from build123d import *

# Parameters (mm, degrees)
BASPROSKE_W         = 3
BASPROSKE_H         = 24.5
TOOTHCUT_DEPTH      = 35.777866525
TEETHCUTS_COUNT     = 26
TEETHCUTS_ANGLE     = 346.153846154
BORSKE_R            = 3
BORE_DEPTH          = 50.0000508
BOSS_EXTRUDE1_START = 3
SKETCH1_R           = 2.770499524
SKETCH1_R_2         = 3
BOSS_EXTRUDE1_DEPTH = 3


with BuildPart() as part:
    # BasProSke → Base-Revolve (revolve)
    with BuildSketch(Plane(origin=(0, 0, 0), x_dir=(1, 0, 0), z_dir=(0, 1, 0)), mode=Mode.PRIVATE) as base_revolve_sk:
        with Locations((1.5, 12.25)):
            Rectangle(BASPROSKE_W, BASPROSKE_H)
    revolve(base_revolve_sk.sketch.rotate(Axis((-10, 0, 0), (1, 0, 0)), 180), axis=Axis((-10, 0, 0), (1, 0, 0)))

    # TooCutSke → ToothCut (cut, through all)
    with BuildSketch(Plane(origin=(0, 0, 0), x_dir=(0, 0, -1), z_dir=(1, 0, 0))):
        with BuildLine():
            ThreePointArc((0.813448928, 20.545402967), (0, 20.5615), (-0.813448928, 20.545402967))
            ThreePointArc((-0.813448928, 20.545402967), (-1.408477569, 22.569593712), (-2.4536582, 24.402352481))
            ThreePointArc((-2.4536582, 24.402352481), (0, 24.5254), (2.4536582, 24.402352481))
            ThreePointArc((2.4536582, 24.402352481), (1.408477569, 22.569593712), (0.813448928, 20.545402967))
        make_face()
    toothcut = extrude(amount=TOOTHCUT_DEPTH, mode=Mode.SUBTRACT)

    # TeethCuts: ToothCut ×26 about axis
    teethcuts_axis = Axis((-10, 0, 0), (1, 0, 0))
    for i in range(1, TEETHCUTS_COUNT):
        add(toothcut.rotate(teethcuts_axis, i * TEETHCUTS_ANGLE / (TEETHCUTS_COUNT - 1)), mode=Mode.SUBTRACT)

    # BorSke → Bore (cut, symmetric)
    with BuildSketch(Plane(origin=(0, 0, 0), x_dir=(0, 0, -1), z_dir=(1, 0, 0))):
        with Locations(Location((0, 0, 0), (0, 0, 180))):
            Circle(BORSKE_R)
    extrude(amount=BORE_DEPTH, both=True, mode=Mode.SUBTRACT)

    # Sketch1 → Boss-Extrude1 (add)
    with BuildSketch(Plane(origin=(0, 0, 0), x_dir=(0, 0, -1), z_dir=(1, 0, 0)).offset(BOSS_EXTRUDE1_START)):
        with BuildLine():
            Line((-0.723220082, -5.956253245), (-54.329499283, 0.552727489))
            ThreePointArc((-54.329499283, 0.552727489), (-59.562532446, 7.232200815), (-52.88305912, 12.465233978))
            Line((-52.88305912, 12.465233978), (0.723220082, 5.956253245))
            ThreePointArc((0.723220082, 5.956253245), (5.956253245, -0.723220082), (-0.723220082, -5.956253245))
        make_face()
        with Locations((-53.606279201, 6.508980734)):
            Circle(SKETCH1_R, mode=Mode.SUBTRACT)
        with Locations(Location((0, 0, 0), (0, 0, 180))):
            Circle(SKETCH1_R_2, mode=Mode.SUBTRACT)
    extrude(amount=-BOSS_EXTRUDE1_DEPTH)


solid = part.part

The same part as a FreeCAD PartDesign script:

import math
import FreeCAD as App
import Part
import Sketcher
from FreeCAD import Vector
Q = App.Units.Quantity

doc = App.newDocument("Part")
body = doc.addObject("PartDesign::Body", "Body")

# Sketch on XZ plane
sketch1 = body.newObject("Sketcher::SketchObject", "Sketch")
sketch1.AttachmentSupport = (doc.getObject("XZ_Plane"), [""])
sketch1.MapMode = "FlatFace"
sketch1.addGeometry([
    Part.LineSegment(Vector(0, -24.5, 0), Vector(0, 0, 0)),
    Part.LineSegment(Vector(0, 0, 0), Vector(3, 0, 0)),
    Part.LineSegment(Vector(3, 0, 0), Vector(3, -24.5, 0)),
    Part.LineSegment(Vector(3, -24.5, 0), Vector(0, -24.5, 0)),
], False)
sketch1.addConstraint([
    Sketcher.Constraint("Coincident", 0, 2, 1, 1),
    Sketcher.Constraint("Coincident", 1, 2, 2, 1),
    Sketcher.Constraint("Coincident", 2, 2, 3, 1),
    Sketcher.Constraint("Coincident", 3, 2, 0, 1),
    Sketcher.Constraint("Vertical", 0),
    Sketcher.Constraint("Horizontal", 1),
    Sketcher.Constraint("Vertical", 2),
    Sketcher.Constraint("Horizontal", 3),
    Sketcher.Constraint("Coincident", 0, 2, -1, 1),
    Sketcher.Constraint("DistanceX", 1, 1, 1, 2, Q("3 mm")),
    Sketcher.Constraint("DistanceY", 0, 1, 0, 2, Q("24.5 mm")),
])
revolution = body.newObject("PartDesign::Revolution", "Revolution")
revolution.Profile = sketch1
revolution.ReferenceAxis = (sketch1, ["H_Axis"])
revolution.Angle = 360

# Sketch on YZ plane
sketch2 = body.newObject("Sketcher::SketchObject", "Sketch001")
sketch2.AttachmentSupport = (doc.getObject("YZ_Plane"), [""])
sketch2.MapMode = "FlatFace"
sketch2.addGeometry([
    Part.ArcOfCircle(Part.Circle(Vector(0, 0, 0), Vector(0, 0, 1), 20.5615), math.radians(-2.267313), math.radians(2.267313)),
    Part.ArcOfCircle(Part.Circle(Vector(19.008364, -9.782703, 0), Vector(0, 0, 1), 9.1), math.radians(53.647888), math.radians(80.275821)),
    Part.ArcOfCircle(Part.Circle(Vector(0, 0, 0), Vector(0, 0, 1), 24.5254), math.radians(-5.741796), math.radians(5.741796)),
    Part.ArcOfCircle(Part.Circle(Vector(19.008364, 9.782703, 0), Vector(0, 0, 1), 9.1), math.radians(-80.275821), math.radians(-53.647888)),
], False)
sketch2.addConstraint([
    Sketcher.Constraint("Coincident", 0, 1, 1, 2),
    Sketcher.Constraint("Coincident", 1, 1, 2, 1),
    Sketcher.Constraint("Coincident", 2, 2, 3, 2),
    Sketcher.Constraint("Coincident", 3, 1, 0, 2),
    Sketcher.Constraint("Coincident", 0, 3, -1, 1),
    Sketcher.Constraint("Coincident", 2, 3, -1, 1),
    Sketcher.Constraint("Equal", 1, 3),
    Sketcher.Constraint("Symmetric", 1, 3, 3, 3, -1),
    Sketcher.Constraint("Radius", 1, Q("9.1 mm")),
    Sketcher.Constraint("Radius", 0, Q("20.5615 mm")),
    Sketcher.Constraint("Radius", 2, Q("24.5254 mm")),
    Sketcher.Constraint("DistanceY", 0, 1, -1, 1, Q("0.813449 mm")),
    Sketcher.Constraint("DistanceY", 1, 1, -1, 1, Q("2.453658 mm")),
])
pocket1 = body.newObject("PartDesign::Pocket", "Pocket")
pocket1.Profile = sketch2
pocket1.Type = "ThroughAll"
pocket1.Reversed = True
doc.recompute()

polarpattern = body.newObject("PartDesign::PolarPattern", "PolarPattern")
polarpattern.Originals = [pocket1]
polarpattern.Axis = (doc.getObject("X_Axis"), [""])
polarpattern.Angle = 360
polarpattern.Occurrences = 26
body.Tip = polarpattern

# Sketch on YZ plane
sketch3 = body.newObject("Sketcher::SketchObject", "Sketch002")
sketch3.AttachmentSupport = (doc.getObject("YZ_Plane"), [""])
sketch3.MapMode = "FlatFace"
sketch3.addGeometry(Part.Circle(Vector(0, 0, 0), Vector(0, 0, 1), 3), False)
sketch3.addConstraint([
    Sketcher.Constraint("Coincident", 0, 3, -1, 1),
    Sketcher.Constraint("Diameter", 0, Q("6 mm")),
])
pocket2 = body.newObject("PartDesign::Pocket", "Pocket001")
pocket2.Profile = sketch3
pocket2.Length = 100.000102
pocket2.Midplane = True

# Sketch on YZ plane
sketch4 = body.newObject("Sketcher::SketchObject", "Sketch003")
sketch4.AttachmentSupport = (doc.getObject("YZ_Plane"), [""])
sketch4.MapMode = "FlatFace"
sketch4.AttachmentOffset = App.Placement(Vector(0, 0, 3), App.Rotation())
sketch4.addGeometry([
    Part.LineSegment(Vector(0.552727, 54.329499, 0), Vector(-5.956253, 0.72322, 0)),  # 0
    Part.ArcOfCircle(Part.Circle(Vector(0, 0, 0), Vector(0, 0, 1), 6), math.radians(173.076923), math.radians(353.076923)),  # 1
    Part.LineSegment(Vector(5.956253, -0.72322, 0), Vector(12.465234, 52.883059, 0)),  # 2
    Part.ArcOfCircle(Part.Circle(Vector(6.508981, 53.606279, 0), Vector(0, 0, 1), 6), math.radians(-6.923077), math.radians(173.076923)),  # 3
    Part.Circle(Vector(0, 0, 0), Vector(0, 0, 1), 3),  # 4
    Part.Circle(Vector(6.508981, 53.606279, 0), Vector(0, 0, 1), 2.7705),  # 5
], False)
sketch4.addConstraint([
    Sketcher.Constraint("Tangent", 0, 2, 1, 1),
    Sketcher.Constraint("Tangent", 1, 2, 2, 1),
    Sketcher.Constraint("Tangent", 2, 2, 3, 1),
    Sketcher.Constraint("Tangent", 3, 2, 0, 1),
    Sketcher.Constraint("Coincident", 1, 3, -1, 1),
    Sketcher.Constraint("Coincident", 4, 3, -1, 1),
    Sketcher.Constraint("Coincident", 5, 3, 3, 3),
    Sketcher.Constraint("Equal", 1, 3),
    Sketcher.Constraint("Diameter", 4, Q("6 mm")),
    Sketcher.Constraint("Radius", 1, Q("6 mm")),
    Sketcher.Constraint("Distance", 0, Q("54 mm")),
    Sketcher.Constraint("Diameter", 5, Q("5.540999 mm")),
    Sketcher.Constraint("DistanceX", -1, 1, 3, 3, Q("6.508981 mm")),
])
pad1 = body.newObject("PartDesign::Pad", "Pad")
pad1.Profile = sketch4
pad1.Length = 3
pad1.Reversed = True

doc.recompute()
